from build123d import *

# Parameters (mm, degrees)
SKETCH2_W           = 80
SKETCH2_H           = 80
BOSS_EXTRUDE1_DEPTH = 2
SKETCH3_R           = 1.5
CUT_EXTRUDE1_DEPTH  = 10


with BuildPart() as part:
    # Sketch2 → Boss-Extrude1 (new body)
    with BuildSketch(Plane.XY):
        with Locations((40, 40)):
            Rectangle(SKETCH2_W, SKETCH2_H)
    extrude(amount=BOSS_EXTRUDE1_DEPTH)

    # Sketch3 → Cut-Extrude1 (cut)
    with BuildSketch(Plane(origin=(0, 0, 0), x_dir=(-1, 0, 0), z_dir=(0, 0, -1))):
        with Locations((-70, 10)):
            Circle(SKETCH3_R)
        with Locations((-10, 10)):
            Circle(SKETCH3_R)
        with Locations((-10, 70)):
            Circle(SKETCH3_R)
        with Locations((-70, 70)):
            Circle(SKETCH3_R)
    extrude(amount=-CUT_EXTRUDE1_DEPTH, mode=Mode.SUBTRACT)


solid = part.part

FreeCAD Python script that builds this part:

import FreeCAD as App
import Part
import Sketcher
from FreeCAD import Vector

doc = App.newDocument("Part")
params = doc.addObject("Spreadsheet::Sheet", "Params")
for row, (alias, value) in enumerate([
    ("sketch1_width", "80 mm"),
    ("pad1_length", "2 mm"),
    ("sketch2_diameter", "3 mm"),
    ("pocket1_length", "10 mm"),
], start=1):
    params.set(f"A{row}", alias)
    params.set(f"B{row}", "=" + value)
    params.setAlias(f"B{row}", alias)

body = doc.addObject("PartDesign::Body", "Body")

# Sketch on XY plane
sketch1 = doc.addObject("Sketcher::SketchObject", "Sketch")
body.addObject(sketch1)
sketch1.AttachmentSupport = (doc.XY_Plane, [""])
sketch1.MapMode = "FlatFace"
sketch1.addGeometry(Part.LineSegment(Vector(0, 80, 0), Vector(0, 0, 0)), False)
sketch1.addGeometry(Part.LineSegment(Vector(0, 0, 0), Vector(80, 0, 0)), False)
sketch1.addGeometry(Part.LineSegment(Vector(80, 0, 0), Vector(80, 80, 0)), False)
sketch1.addGeometry(Part.LineSegment(Vector(80, 80, 0), Vector(0, 80, 0)), False)
sketch1.addConstraint(Sketcher.Constraint("Coincident", 0, 2, 1, 1))
sketch1.addConstraint(Sketcher.Constraint("Coincident", 1, 2, 2, 1))
sketch1.addConstraint(Sketcher.Constraint("Coincident", 2, 2, 3, 1))
sketch1.addConstraint(Sketcher.Constraint("Coincident", 3, 2, 0, 1))
sketch1.addConstraint(Sketcher.Constraint("Vertical", 0))
sketch1.addConstraint(Sketcher.Constraint("Horizontal", 1))
sketch1.addConstraint(Sketcher.Constraint("Vertical", 2))
sketch1.addConstraint(Sketcher.Constraint("Horizontal", 3))
sketch1.addConstraint(Sketcher.Constraint("Coincident", 0, 2, -1, 1))
sketch1.addConstraint(Sketcher.Constraint("Equal", 3, 0))
sketch1.addConstraint(Sketcher.Constraint("DistanceX", 1, 1, 1, 2, 80.0))
sketch1.setExpression("Constraints[10]", "Params.sketch1_width")
pad1 = doc.addObject("PartDesign::Pad", "Pad")
body.addObject(pad1)
pad1.Profile = sketch1
pad1.setExpression("Length", "Params.pad1_length")

# Sketch on XY plane
sketch2 = doc.addObject("Sketcher::SketchObject", "Sketch001")
body.addObject(sketch2)
sketch2.AttachmentSupport = (doc.XY_Plane, [""])
sketch2.MapMode = "FlatFace"
sketch2.addGeometry(Part.Circle(Vector(70, 10, 0), Vector(0, 0, 1), 1.5), False)
sketch2.addGeometry(Part.Circle(Vector(10, 10, 0), Vector(0, 0, 1), 1.5), False)
sketch2.addGeometry(Part.Circle(Vector(10, 70, 0), Vector(0, 0, 1), 1.5), False)
sketch2.addGeometry(Part.Circle(Vector(70, 70, 0), Vector(0, 0, 1), 1.5), False)
sketch2.addConstraint(Sketcher.Constraint("Equal", 0, 1))
sketch2.addConstraint(Sketcher.Constraint("Equal", 1, 2))
sketch2.addConstraint(Sketcher.Constraint("Equal", 2, 3))
sketch2.addConstraint(Sketcher.Constraint("Horizontal", 0, 3, 1, 3))
sketch2.addConstraint(Sketcher.Constraint("Horizontal", 2, 3, 3, 3))
sketch2.addConstraint(Sketcher.Constraint("Vertical", 1, 3, 2, 3))
sketch2.addConstraint(Sketcher.Constraint("Vertical", 0, 3, 3, 3))
sketch2.addConstraint(Sketcher.Constraint("Diameter", 0, 3.0))
sketch2.addConstraint(Sketcher.Constraint("DistanceX", -1, 1, 0, 3, 70.0))
sketch2.addConstraint(Sketcher.Constraint("DistanceY", -1, 1, 0, 3, 10.0))
sketch2.addConstraint(Sketcher.Constraint("DistanceX", -1, 1, 1, 3, 10.0))
sketch2.addConstraint(Sketcher.Constraint("DistanceY", -1, 1, 2, 3, 70.0))
sketch2.setExpression("Constraints[7]", "Params.sketch2_diameter")
pocket1 = doc.addObject("PartDesign::Pocket", "Pocket")
body.addObject(pocket1)
pocket1.Profile = sketch2
pocket1.setExpression("Length", "Params.pocket1_length")
pocket1.Reversed = True

doc.recompute()
